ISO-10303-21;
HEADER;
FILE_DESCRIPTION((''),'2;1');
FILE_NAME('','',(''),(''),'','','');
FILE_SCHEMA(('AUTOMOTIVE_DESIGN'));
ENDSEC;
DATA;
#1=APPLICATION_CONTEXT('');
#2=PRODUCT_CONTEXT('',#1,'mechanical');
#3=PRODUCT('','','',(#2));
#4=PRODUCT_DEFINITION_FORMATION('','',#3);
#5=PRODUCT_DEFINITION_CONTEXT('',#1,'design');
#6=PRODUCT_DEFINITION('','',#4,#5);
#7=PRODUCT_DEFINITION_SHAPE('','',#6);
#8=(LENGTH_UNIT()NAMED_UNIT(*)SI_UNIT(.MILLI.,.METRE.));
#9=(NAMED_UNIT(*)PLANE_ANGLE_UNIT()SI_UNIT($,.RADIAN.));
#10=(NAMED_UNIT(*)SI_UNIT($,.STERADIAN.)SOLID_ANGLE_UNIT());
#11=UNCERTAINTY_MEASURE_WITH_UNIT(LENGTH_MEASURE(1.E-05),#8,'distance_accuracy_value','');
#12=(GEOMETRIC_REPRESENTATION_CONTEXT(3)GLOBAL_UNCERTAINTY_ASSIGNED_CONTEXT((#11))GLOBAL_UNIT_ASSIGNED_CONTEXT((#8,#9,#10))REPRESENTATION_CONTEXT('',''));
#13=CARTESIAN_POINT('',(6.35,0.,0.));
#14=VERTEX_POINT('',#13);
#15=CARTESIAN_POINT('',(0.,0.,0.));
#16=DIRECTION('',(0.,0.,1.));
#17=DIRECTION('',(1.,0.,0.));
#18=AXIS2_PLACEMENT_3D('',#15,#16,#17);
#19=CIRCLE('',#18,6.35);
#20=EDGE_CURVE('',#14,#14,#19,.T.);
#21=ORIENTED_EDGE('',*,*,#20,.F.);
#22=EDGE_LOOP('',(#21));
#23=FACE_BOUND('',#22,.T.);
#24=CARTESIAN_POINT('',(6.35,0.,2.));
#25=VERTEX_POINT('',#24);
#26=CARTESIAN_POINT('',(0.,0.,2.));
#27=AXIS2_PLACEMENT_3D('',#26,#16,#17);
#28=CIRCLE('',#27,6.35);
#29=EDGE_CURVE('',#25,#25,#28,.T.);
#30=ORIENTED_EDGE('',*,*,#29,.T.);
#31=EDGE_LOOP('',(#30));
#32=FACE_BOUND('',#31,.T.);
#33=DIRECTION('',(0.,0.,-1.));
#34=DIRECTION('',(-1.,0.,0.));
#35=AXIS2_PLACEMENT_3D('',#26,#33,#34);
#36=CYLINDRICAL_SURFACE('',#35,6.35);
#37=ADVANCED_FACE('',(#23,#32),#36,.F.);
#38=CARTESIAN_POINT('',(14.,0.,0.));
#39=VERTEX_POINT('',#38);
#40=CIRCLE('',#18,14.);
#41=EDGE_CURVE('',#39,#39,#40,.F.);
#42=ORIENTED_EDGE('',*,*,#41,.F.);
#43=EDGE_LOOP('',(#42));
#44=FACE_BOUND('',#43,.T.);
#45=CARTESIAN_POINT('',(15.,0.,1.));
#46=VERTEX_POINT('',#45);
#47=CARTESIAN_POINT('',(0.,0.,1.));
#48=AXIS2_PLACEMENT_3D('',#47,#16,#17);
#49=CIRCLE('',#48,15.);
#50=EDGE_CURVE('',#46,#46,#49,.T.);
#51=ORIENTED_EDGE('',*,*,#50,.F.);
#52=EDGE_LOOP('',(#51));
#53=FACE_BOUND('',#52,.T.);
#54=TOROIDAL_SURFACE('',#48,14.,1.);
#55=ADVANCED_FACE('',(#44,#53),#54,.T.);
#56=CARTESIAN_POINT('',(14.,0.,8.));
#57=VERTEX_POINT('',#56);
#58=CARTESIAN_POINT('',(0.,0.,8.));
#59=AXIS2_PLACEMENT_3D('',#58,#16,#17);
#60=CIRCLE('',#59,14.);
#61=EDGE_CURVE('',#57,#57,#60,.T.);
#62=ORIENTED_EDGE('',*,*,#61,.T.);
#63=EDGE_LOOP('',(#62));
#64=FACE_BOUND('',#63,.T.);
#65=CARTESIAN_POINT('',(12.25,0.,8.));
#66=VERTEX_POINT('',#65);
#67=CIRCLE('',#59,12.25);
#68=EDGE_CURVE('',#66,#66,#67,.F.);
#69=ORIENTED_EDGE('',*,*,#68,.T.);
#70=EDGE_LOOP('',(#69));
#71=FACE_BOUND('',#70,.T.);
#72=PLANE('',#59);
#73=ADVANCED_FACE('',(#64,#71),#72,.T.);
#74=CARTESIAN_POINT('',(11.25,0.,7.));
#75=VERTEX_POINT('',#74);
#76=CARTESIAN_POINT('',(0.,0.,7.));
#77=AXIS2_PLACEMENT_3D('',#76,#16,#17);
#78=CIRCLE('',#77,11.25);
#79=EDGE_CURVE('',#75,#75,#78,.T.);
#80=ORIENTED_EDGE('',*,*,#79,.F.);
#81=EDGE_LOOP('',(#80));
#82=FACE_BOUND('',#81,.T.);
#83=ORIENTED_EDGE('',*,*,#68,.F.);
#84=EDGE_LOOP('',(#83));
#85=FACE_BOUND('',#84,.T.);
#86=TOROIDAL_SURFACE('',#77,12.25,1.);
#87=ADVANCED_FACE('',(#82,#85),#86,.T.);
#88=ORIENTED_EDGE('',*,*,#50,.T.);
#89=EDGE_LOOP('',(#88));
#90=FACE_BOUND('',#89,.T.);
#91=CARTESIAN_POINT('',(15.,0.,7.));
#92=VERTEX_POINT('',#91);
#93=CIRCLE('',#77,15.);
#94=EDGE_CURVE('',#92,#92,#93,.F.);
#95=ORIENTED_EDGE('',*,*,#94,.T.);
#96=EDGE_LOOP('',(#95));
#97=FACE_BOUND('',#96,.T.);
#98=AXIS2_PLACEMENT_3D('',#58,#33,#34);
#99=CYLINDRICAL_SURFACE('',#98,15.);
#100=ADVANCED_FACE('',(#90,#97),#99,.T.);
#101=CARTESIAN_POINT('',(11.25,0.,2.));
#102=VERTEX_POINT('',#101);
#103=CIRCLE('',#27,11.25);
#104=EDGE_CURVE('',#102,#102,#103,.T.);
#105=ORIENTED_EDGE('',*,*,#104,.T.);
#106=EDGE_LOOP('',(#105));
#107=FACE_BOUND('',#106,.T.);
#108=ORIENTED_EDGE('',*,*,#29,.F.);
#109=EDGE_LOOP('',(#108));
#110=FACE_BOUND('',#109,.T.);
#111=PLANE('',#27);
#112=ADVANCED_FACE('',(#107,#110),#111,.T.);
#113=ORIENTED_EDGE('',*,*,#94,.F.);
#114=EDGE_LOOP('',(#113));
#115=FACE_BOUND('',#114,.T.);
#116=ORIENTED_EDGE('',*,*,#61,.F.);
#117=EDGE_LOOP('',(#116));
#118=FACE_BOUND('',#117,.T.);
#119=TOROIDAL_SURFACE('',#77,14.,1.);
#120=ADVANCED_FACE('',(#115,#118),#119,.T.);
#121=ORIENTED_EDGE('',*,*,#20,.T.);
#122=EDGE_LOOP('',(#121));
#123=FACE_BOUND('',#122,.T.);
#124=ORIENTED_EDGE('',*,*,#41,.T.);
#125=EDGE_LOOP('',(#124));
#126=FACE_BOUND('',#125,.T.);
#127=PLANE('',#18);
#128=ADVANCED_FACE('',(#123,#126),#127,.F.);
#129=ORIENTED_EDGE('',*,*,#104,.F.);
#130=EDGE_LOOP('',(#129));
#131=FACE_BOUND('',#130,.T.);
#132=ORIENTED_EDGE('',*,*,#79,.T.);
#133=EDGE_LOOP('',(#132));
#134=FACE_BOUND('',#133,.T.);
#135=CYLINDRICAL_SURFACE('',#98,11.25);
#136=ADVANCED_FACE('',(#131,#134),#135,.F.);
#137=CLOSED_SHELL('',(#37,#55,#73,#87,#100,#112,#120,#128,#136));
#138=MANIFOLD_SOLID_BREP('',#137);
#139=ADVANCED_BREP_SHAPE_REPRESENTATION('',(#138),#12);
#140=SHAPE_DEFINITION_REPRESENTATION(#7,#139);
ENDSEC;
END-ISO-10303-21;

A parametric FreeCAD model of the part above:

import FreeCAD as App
import Part
import Sketcher
Q = App.Units.Quantity


def edges_at(feature, points):
    """Names of the edges that pass closest to the given points."""
    edges = feature.Shape.Edges
    near = lambda p: min(range(len(edges)), key=lambda i: edges[i].distToShape(Part.Vertex(*p))[0])
    return sorted({f"Edge{near(p) + 1}" for p in points})

doc = App.newDocument("Part")
body = doc.addObject("PartDesign::Body", "Body")

# Sketch on XY plane
sketch1 = body.newObject("Sketcher::SketchObject", "Sketch")
sketch1.AttachmentSupport = (doc.getObject("XY_Plane"), [""])
sketch1.MapMode = "FlatFace"
sketch1.addGeometry([
    Part.Circle(App.Vector(0, 0, 0), App.Vector(0, 0, 1), 15),
    Part.Circle(App.Vector(0, 0, 0), App.Vector(0, 0, 1), 11.25),
], False)
sketch1.addConstraint([
    Sketcher.Constraint("Coincident", 0, 3, -1, 1),
    Sketcher.Constraint("Coincident", 1, 3, -1, 1),
    Sketcher.Constraint("Diameter", 0, Q("30 mm")),
    Sketcher.Constraint("Diameter", 1, Q("22.5 mm")),
])
pad1 = body.newObject("PartDesign::Pad", "Pad")
pad1.Profile = sketch1
pad1.Length = 8

# Sketch on XY plane
sketch2 = body.newObject("Sketcher::SketchObject", "Sketch001")
sketch2.AttachmentSupport = (doc.getObject("XY_Plane"), [""])
sketch2.MapMode = "FlatFace"
sketch2.addGeometry([
    Part.Circle(App.Vector(0, 0, 0), App.Vector(0, 0, 1), 11.25),
    Part.Circle(App.Vector(0, 0, 0), App.Vector(0, 0, 1), 6.35),
], False)
sketch2.addConstraint([
    Sketcher.Constraint("Coincident", 0, 3, -1, 1),
    Sketcher.Constraint("Coincident", 1, 3, -1, 1),
    Sketcher.Constraint("Diameter", 0, Q("22.5 mm")),
    Sketcher.Constraint("Diameter", 1, Q("12.7 mm")),
])
pad2 = body.newObject("PartDesign::Pad", "Pad001")
pad2.Profile = sketch2
pad2.Length = 2
doc.recompute()

fillet = body.newObject("PartDesign::Fillet", "Fillet")
fillet.Base = (pad2, edges_at(pad2, [(-15, 0, 8), (-15, 0, 0), (-11.25, 0, 8)]))
fillet.Radius = 1

doc.recompute()
